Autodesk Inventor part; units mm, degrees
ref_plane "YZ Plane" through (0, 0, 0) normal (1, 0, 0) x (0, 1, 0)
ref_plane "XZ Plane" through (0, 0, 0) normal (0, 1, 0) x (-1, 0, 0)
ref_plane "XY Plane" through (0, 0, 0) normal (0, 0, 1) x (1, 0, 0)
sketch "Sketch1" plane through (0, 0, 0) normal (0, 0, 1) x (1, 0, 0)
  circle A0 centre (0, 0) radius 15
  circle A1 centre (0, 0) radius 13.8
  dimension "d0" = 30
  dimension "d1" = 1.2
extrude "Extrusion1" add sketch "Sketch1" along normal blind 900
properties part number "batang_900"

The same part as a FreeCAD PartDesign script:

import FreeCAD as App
import Part
import Sketcher
from FreeCAD import Vector
Q = App.Units.Quantity

doc = App.newDocument("Part")
body = doc.addObject("PartDesign::Body", "Body")

# Sketch on XY plane
sketch1 = doc.addObject("Sketcher::SketchObject", "Sketch")
body.addObject(sketch1)
sketch1.AttachmentSupport = (doc.XY_Plane, [""])
sketch1.MapMode = "FlatFace"
sketch1.addGeometry([
    Part.Circle(Vector(0, 0, 0), Vector(0, 0, 1), 15),
    Part.Circle(Vector(0, 0, 0), Vector(0, 0, 1), 14),
], False)
sketch1.addConstraint([
    Sketcher.Constraint("Coincident", 0, 3, -1, 1),
    Sketcher.Constraint("Coincident", 1, 3, -1, 1),
    Sketcher.Constraint("Diameter", 0, Q("30 mm")),
    Sketcher.Constraint("Diameter", 1, Q("27.6 mm")),
])
pad1 = doc.addObject("PartDesign::Pad", "Pad")
body.addObject(pad1)
pad1.Profile = sketch1
pad1.Length = 900

doc.recompute()
